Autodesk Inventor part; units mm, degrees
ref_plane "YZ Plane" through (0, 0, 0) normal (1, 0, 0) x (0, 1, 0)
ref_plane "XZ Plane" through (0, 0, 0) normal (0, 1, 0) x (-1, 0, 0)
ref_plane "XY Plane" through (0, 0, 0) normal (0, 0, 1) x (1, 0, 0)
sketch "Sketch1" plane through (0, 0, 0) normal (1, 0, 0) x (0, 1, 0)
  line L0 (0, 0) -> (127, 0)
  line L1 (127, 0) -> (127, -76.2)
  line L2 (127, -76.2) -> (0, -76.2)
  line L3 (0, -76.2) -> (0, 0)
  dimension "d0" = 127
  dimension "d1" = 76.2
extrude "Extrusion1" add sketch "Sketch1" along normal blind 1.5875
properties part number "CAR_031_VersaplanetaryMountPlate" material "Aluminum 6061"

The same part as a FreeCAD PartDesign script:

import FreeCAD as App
import Part
import Sketcher
Q = App.Units.Quantity

doc = App.newDocument("Part")
body = doc.addObject("PartDesign::Body", "Body")

# Sketch on YZ plane
sketch1 = body.newObject("Sketcher::SketchObject", "Sketch")
sketch1.AttachmentSupport = (doc.getObject("YZ_Plane"), [""])
sketch1.MapMode = "FlatFace"
sketch1.addGeometry([
    Part.LineSegment(App.Vector(127, 0, 0), App.Vector(0, 0, 0)),
    Part.LineSegment(App.Vector(0, 0, 0), App.Vector(0, -76, 0)),
    Part.LineSegment(App.Vector(0, -76, 0), App.Vector(127, -76, 0)),
    Part.LineSegment(App.Vector(127, -76, 0), App.Vector(127, 0, 0)),
], False)
sketch1.addConstraint([
    Sketcher.Constraint("Coincident", 0, 2, 1, 1),
    Sketcher.Constraint("Coincident", 1, 2, 2, 1),
    Sketcher.Constraint("Coincident", 2, 2, 3, 1),
    Sketcher.Constraint("Coincident", 3, 2, 0, 1),
    Sketcher.Constraint("Horizontal", 0),
    Sketcher.Constraint("Vertical", 1),
    Sketcher.Constraint("Horizontal", 2),
    Sketcher.Constraint("Vertical", 3),
    Sketcher.Constraint("Coincident", 0, 2, -1, 1),
    Sketcher.Constraint("DistanceX", 0, 2, 0, 1, Q("5 in")),
    Sketcher.Constraint("DistanceY", 1, 2, 1, 1, Q("3 in")),
])
pad1 = body.newObject("PartDesign::Pad", "Pad")
pad1.Profile = sketch1
pad1.Length = Q("0.0625 in")

doc.recompute()
